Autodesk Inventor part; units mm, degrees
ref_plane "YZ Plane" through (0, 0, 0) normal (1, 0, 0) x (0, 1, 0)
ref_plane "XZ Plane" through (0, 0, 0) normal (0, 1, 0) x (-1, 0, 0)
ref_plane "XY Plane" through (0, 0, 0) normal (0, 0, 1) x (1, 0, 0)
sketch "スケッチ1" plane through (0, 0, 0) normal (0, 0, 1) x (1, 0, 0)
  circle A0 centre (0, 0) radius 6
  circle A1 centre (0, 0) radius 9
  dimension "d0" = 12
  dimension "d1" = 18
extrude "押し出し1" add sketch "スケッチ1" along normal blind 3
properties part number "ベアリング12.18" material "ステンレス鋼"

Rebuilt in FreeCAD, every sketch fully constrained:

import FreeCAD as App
import Part
import Sketcher
Q = App.Units.Quantity

doc = App.newDocument("Part")
body = doc.addObject("PartDesign::Body", "Body")

sketch1 = body.newObject("Sketcher::SketchObject", "Sketch")
sketch1.AttachmentSupport = (doc.getObject("XY_Plane"), [""])
sketch1.MapMode = "FlatFace"
sketch1.addGeometry([
    Part.Circle(App.Vector(0, 0, 0), App.Vector(0, 0, 1), 9),
    Part.Circle(App.Vector(0, 0, 0), App.Vector(0, 0, 1), 6),
], False)
sketch1.addConstraint([
    Sketcher.Constraint("Coincident", 0, 3, -1, 1),
    Sketcher.Constraint("Coincident", 1, 3, -1, 1),
    Sketcher.Constraint("Diameter", 0, Q("18 mm")),
    Sketcher.Constraint("Diameter", 1, Q("12 mm")),
])
pad1 = body.newObject("PartDesign::Pad", "Pad")
pad1.Profile = sketch1
pad1.Length = 3

doc.recompute()
